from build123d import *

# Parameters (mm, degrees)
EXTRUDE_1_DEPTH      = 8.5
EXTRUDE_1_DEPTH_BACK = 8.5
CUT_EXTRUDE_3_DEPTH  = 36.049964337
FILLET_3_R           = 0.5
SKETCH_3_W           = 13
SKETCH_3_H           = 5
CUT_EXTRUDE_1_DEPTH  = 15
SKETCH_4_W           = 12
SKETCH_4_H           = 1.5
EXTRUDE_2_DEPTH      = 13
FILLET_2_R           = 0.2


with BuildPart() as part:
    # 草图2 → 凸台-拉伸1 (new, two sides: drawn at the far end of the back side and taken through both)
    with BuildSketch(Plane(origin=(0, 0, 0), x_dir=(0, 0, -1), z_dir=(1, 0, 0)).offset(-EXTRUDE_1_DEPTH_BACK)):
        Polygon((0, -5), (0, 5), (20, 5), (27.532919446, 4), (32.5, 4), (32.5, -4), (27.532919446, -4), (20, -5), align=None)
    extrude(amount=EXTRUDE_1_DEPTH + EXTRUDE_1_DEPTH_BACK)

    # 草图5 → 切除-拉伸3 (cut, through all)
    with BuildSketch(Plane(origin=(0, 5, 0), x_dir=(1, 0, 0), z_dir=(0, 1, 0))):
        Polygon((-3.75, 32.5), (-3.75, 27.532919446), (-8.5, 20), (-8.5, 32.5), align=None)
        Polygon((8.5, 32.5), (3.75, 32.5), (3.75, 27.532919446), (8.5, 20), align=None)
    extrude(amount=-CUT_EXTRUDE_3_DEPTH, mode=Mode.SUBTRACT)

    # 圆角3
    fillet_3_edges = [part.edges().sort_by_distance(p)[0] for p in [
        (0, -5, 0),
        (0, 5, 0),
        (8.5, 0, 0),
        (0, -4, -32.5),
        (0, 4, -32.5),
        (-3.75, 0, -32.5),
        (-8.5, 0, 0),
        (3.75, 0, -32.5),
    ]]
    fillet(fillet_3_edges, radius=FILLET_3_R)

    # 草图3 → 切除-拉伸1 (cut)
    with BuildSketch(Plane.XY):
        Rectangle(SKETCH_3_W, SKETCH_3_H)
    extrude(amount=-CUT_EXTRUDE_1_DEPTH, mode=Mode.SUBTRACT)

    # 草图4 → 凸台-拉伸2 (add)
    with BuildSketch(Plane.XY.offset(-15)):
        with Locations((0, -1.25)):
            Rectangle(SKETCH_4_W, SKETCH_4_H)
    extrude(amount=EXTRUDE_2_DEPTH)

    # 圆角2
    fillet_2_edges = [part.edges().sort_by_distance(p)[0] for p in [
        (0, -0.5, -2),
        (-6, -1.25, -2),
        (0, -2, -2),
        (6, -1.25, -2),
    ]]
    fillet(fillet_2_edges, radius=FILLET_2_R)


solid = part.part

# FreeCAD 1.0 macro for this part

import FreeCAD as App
import Part
import Sketcher


def edges_at(feature, points):
    """Names of the edges that pass closest to the given points."""
    edges = feature.Shape.Edges
    near = lambda p: min(range(len(edges)), key=lambda i: edges[i].distToShape(Part.Vertex(*p))[0])
    return sorted({f"Edge{near(p) + 1}" for p in points})

doc = App.newDocument("Part")
params = doc.addObject("Spreadsheet::Sheet", "Params")
for row, (alias, value) in enumerate([
    ("sketch1_width", "10 mm"),
    ("sketch1_width2", "8 mm"),
    ("sketch1_height", "20 mm"),
    ("pad1_length", "8.5 mm"),
    ("pad1_length2", "8.5 mm"),
    ("sketch2_height", "12.5 mm"),
    ("sketch2_width", "4.75 mm"),
    ("fillet_radius", "0.5 mm"),
    ("sketch3_width", "13 mm"),
    ("sketch3_height", "5 mm"),
    ("pocket2_length", "15 mm"),
    ("sketch4_width", "12 mm"),
    ("sketch4_height", "1.5 mm"),
    ("pad2_length", "13 mm"),
    ("fillet2_radius", "0.2 mm"),
], start=1):
    params.set(f"A{row}", alias)
    params.set(f"B{row}", "=" + value)
    params.setAlias(f"B{row}", alias)

body = doc.addObject("PartDesign::Body", "Body")

sketch1 = body.newObject("Sketcher::SketchObject", "Sketch")
sketch1.AttachmentSupport = (doc.getObject("YZ_Plane"), [""])
sketch1.MapMode = "FlatFace"
sketch1.addGeometry([
    Part.LineSegment(App.Vector(5, 0, 0), App.Vector(-5, 0, 0)),
    Part.LineSegment(App.Vector(-5, 0, 0), App.Vector(-5, -20, 0)),
    Part.LineSegment(App.Vector(-5, -20, 0), App.Vector(-4, -27.5, 0)),
    Part.LineSegment(App.Vector(-4, -27.5, 0), App.Vector(-4, -32.5, 0)),
    Part.LineSegment(App.Vector(-4, -32.5, 0), App.Vector(4, -32.5, 0)),
    Part.LineSegment(App.Vector(4, -32.5, 0), App.Vector(4, -27.5, 0)),
    Part.LineSegment(App.Vector(4, -27.5, 0), App.Vector(5, -20, 0)),
    Part.LineSegment(App.Vector(5, -20, 0), App.Vector(5, 0, 0)),
], False)
sketch1.addConstraint([
    Sketcher.Constraint("Coincident", 0, 2, 1, 1),
    Sketcher.Constraint("Coincident", 1, 2, 2, 1),
    Sketcher.Constraint("Coincident", 2, 2, 3, 1),
    Sketcher.Constraint("Coincident", 3, 2, 4, 1),
    Sketcher.Constraint("Coincident", 4, 2, 5, 1),
    Sketcher.Constraint("Coincident", 5, 2, 6, 1),
    Sketcher.Constraint("Coincident", 6, 2, 7, 1),
    Sketcher.Constraint("Coincident", 7, 2, 0, 1),
    Sketcher.Constraint("Horizontal", 0),
    Sketcher.Constraint("Vertical", 1),
    Sketcher.Constraint("Vertical", 3),
    Sketcher.Constraint("Horizontal", 4),
    Sketcher.Constraint("Vertical", 5),
    Sketcher.Constraint("Vertical", 7),
    Sketcher.Constraint("Symmetric", 0, 2, 7, 2, -1, 1),
    Sketcher.Constraint("Symmetric", 2, 2, 5, 2, -2),
    Sketcher.Constraint("Horizontal", 1, 2, 6, 2),
    Sketcher.Constraint("DistanceX", 0, 2, 0, 1, 10.0),
    Sketcher.Constraint("DistanceX", 4, 1, 4, 2, 8.0),
    Sketcher.Constraint("DistanceY", 1, 2, 1, 1, 20.0),
    Sketcher.Constraint("DistanceY", 3, 2, -1, 1, 32.5),
    Sketcher.Constraint("DistanceY", 3, 2, 3, 1, 4.967081),
])
sketch1.setExpression("Constraints[17]", "Params.sketch1_width")
sketch1.setExpression("Constraints[18]", "Params.sketch1_width2")
sketch1.setExpression("Constraints[19]", "Params.sketch1_height")
pad1 = body.newObject("PartDesign::Pad", "Pad")
pad1.Profile = sketch1
pad1.Type = "TwoLengths"
pad1.setExpression("Length", "Params.pad1_length")
pad1.setExpression("Length2", "Params.pad1_length2")

sketch2 = body.newObject("Sketcher::SketchObject", "Sketch001")
sketch2.AttachmentSupport = (doc.getObject("XZ_Plane"), [""])
sketch2.MapMode = "FlatFace"
sketch2.AttachmentOffset = App.Placement(App.Vector(0, 0, -5), App.Rotation())
sketch2.addGeometry([
    Part.LineSegment(App.Vector(-3.8, -27.5, 0), App.Vector(-3.8, -32.5, 0)),
    Part.LineSegment(App.Vector(-3.8, -32.5, 0), App.Vector(-8.5, -32.5, 0)),
    Part.LineSegment(App.Vector(-8.5, -32.5, 0), App.Vector(-8.5, -20, 0)),
    Part.LineSegment(App.Vector(-8.5, -20, 0), App.Vector(-3.8, -27.5, 0)),
    Part.LineSegment(App.Vector(8.5, -32.5, 0), App.Vector(3.8, -32.5, 0)),
    Part.LineSegment(App.Vector(3.8, -32.5, 0), App.Vector(3.8, -27.5, 0)),
    Part.LineSegment(App.Vector(3.8, -27.5, 0), App.Vector(8.5, -20, 0)),
    Part.LineSegment(App.Vector(8.5, -20, 0), App.Vector(8.5, -32.5, 0)),
], False)
sketch2.addConstraint([
    Sketcher.Constraint("Coincident", 0, 2, 1, 1),
    Sketcher.Constraint("Coincident", 1, 2, 2, 1),
    Sketcher.Constraint("Coincident", 2, 2, 3, 1),
    Sketcher.Constraint("Coincident", 3, 2, 0, 1),
    Sketcher.Constraint("Coincident", 4, 2, 5, 1),
    Sketcher.Constraint("Coincident", 5, 2, 6, 1),
    Sketcher.Constraint("Coincident", 6, 2, 7, 1),
    Sketcher.Constraint("Coincident", 7, 2, 4, 1),
    Sketcher.Constraint("Vertical", 0),
    Sketcher.Constraint("Horizontal", 1),
    Sketcher.Constraint("Vertical", 2),
    Sketcher.Constraint("Horizontal", 4),
    Sketcher.Constraint("Vertical", 5),
    Sketcher.Constraint("Vertical", 7),
    Sketcher.Constraint("Symmetric", 0, 2, 4, 2, -2),
    Sketcher.Constraint("Symmetric", 2, 2, 6, 2, -2),
    Sketcher.Constraint("Horizontal", 3, 2, 5, 2),
    Sketcher.Constraint("DistanceY", 2, 1, 2, 2, 12.5),
    Sketcher.Constraint("DistanceY", 2, 2, -1, 1, 20.0),
    Sketcher.Constraint("DistanceX", 2, 2, 6, 2, 17.0),
    Sketcher.Constraint("DistanceX", 1, 2, 1, 1, 4.75),
    Sketcher.Constraint("DistanceY", 0, 2, 0, 1, 4.967081),
])
sketch2.setExpression("Constraints[17]", "Params.sketch2_height")
sketch2.setExpression("Constraints[20]", "Params.sketch2_width")
pocket1 = body.newObject("PartDesign::Pocket", "Pocket")
pocket1.Profile = sketch2
pocket1.Type = "ThroughAll"
pocket1.Reversed = True
doc.recompute()

fillet = body.newObject("PartDesign::Fillet", "Fillet")
fillet.Base = (pocket1, edges_at(pocket1, [
    (0, -5, 0),
    (0, 5, 0),
    (8.5, 0, 0),
    (0, -4, -32.5),
    (0, 4, -32.5),
    (-3.75, 0, -32.5),
    (-8.5, 0, 0),
    (3.75, 0, -32.5),
]))
fillet.setExpression("Radius", "Params.fillet_radius")

sketch3 = body.newObject("Sketcher::SketchObject", "Sketch002")
sketch3.AttachmentSupport = (doc.getObject("XY_Plane"), [""])
sketch3.MapMode = "FlatFace"
sketch3.addGeometry([
    Part.LineSegment(App.Vector(-6, 2, 0), App.Vector(-6, -2, 0)),
    Part.LineSegment(App.Vector(-6, -2, 0), App.Vector(6, -2, 0)),
    Part.LineSegment(App.Vector(6, -2, 0), App.Vector(6, 2, 0)),
    Part.LineSegment(App.Vector(6, 2, 0), App.Vector(-6, 2, 0)),
], False)
sketch3.addConstraint([
    Sketcher.Constraint("Coincident", 0, 2, 1, 1),
    Sketcher.Constraint("Coincident", 1, 2, 2, 1),
    Sketcher.Constraint("Coincident", 2, 2, 3, 1),
    Sketcher.Constraint("Coincident", 3, 2, 0, 1),
    Sketcher.Constraint("Vertical", 0),
    Sketcher.Constraint("Horizontal", 1),
    Sketcher.Constraint("Vertical", 2),
    Sketcher.Constraint("Horizontal", 3),
    Sketcher.Constraint("Symmetric", 0, 2, 2, 2, -1, 1),
    Sketcher.Constraint("DistanceX", 1, 1, 1, 2, 13.0),
    Sketcher.Constraint("DistanceY", 0, 2, 0, 1, 5.0),
])
sketch3.setExpression("Constraints[9]", "Params.sketch3_width")
sketch3.setExpression("Constraints[10]", "Params.sketch3_height")
pocket2 = body.newObject("PartDesign::Pocket", "Pocket001")
pocket2.Profile = sketch3
pocket2.setExpression("Length", "Params.pocket2_length")

sketch4 = body.newObject("Sketcher::SketchObject", "Sketch003")
sketch4.AttachmentSupport = (doc.getObject("XY_Plane"), [""])
sketch4.MapMode = "FlatFace"
sketch4.AttachmentOffset = App.Placement(App.Vector(0, 0, -15), App.Rotation())
sketch4.addGeometry([
    Part.LineSegment(App.Vector(-6, -0.5, 0), App.Vector(-6, -2, 0)),
    Part.LineSegment(App.Vector(-6, -2, 0), App.Vector(6, -2, 0)),
    Part.LineSegment(App.Vector(6, -2, 0), App.Vector(6, -0.5, 0)),
    Part.LineSegment(App.Vector(6, -0.5, 0), App.Vector(-6, -0.5, 0)),
], False)
sketch4.addConstraint([
    Sketcher.Constraint("Coincident", 0, 2, 1, 1),
    Sketcher.Constraint("Coincident", 1, 2, 2, 1),
    Sketcher.Constraint("Coincident", 2, 2, 3, 1),
    Sketcher.Constraint("Coincident", 3, 2, 0, 1),
    Sketcher.Constraint("Vertical", 0),
    Sketcher.Constraint("Horizontal", 1),
    Sketcher.Constraint("Vertical", 2),
    Sketcher.Constraint("Horizontal", 3),
    Sketcher.Constraint("DistanceX", 1, 1, 1, 2, 12.0),
    Sketcher.Constraint("DistanceY", 0, 2, 0, 1, 1.5),
    Sketcher.Constraint("DistanceX", 0, 2, -1, 1, 6.0),
    Sketcher.Constraint("DistanceY", 0, 2, -1, 1, 2.0),
])
sketch4.setExpression("Constraints[8]", "Params.sketch4_width")
sketch4.setExpression("Constraints[9]", "Params.sketch4_height")
pad2 = body.newObject("PartDesign::Pad", "Pad001")
pad2.Profile = sketch4
pad2.setExpression("Length", "Params.pad2_length")
doc.recompute()

fillet2 = body.newObject("PartDesign::Fillet", "Fillet001")
fillet2.Base = (pad2, edges_at(pad2, [
    (0, -0.5, -2),
    (-6, -1.25, -2),
    (0, -2, -2),
    (6, -1.25, -2),
]))
fillet2.setExpression("Radius", "Params.fillet2_radius")

doc.recompute()
